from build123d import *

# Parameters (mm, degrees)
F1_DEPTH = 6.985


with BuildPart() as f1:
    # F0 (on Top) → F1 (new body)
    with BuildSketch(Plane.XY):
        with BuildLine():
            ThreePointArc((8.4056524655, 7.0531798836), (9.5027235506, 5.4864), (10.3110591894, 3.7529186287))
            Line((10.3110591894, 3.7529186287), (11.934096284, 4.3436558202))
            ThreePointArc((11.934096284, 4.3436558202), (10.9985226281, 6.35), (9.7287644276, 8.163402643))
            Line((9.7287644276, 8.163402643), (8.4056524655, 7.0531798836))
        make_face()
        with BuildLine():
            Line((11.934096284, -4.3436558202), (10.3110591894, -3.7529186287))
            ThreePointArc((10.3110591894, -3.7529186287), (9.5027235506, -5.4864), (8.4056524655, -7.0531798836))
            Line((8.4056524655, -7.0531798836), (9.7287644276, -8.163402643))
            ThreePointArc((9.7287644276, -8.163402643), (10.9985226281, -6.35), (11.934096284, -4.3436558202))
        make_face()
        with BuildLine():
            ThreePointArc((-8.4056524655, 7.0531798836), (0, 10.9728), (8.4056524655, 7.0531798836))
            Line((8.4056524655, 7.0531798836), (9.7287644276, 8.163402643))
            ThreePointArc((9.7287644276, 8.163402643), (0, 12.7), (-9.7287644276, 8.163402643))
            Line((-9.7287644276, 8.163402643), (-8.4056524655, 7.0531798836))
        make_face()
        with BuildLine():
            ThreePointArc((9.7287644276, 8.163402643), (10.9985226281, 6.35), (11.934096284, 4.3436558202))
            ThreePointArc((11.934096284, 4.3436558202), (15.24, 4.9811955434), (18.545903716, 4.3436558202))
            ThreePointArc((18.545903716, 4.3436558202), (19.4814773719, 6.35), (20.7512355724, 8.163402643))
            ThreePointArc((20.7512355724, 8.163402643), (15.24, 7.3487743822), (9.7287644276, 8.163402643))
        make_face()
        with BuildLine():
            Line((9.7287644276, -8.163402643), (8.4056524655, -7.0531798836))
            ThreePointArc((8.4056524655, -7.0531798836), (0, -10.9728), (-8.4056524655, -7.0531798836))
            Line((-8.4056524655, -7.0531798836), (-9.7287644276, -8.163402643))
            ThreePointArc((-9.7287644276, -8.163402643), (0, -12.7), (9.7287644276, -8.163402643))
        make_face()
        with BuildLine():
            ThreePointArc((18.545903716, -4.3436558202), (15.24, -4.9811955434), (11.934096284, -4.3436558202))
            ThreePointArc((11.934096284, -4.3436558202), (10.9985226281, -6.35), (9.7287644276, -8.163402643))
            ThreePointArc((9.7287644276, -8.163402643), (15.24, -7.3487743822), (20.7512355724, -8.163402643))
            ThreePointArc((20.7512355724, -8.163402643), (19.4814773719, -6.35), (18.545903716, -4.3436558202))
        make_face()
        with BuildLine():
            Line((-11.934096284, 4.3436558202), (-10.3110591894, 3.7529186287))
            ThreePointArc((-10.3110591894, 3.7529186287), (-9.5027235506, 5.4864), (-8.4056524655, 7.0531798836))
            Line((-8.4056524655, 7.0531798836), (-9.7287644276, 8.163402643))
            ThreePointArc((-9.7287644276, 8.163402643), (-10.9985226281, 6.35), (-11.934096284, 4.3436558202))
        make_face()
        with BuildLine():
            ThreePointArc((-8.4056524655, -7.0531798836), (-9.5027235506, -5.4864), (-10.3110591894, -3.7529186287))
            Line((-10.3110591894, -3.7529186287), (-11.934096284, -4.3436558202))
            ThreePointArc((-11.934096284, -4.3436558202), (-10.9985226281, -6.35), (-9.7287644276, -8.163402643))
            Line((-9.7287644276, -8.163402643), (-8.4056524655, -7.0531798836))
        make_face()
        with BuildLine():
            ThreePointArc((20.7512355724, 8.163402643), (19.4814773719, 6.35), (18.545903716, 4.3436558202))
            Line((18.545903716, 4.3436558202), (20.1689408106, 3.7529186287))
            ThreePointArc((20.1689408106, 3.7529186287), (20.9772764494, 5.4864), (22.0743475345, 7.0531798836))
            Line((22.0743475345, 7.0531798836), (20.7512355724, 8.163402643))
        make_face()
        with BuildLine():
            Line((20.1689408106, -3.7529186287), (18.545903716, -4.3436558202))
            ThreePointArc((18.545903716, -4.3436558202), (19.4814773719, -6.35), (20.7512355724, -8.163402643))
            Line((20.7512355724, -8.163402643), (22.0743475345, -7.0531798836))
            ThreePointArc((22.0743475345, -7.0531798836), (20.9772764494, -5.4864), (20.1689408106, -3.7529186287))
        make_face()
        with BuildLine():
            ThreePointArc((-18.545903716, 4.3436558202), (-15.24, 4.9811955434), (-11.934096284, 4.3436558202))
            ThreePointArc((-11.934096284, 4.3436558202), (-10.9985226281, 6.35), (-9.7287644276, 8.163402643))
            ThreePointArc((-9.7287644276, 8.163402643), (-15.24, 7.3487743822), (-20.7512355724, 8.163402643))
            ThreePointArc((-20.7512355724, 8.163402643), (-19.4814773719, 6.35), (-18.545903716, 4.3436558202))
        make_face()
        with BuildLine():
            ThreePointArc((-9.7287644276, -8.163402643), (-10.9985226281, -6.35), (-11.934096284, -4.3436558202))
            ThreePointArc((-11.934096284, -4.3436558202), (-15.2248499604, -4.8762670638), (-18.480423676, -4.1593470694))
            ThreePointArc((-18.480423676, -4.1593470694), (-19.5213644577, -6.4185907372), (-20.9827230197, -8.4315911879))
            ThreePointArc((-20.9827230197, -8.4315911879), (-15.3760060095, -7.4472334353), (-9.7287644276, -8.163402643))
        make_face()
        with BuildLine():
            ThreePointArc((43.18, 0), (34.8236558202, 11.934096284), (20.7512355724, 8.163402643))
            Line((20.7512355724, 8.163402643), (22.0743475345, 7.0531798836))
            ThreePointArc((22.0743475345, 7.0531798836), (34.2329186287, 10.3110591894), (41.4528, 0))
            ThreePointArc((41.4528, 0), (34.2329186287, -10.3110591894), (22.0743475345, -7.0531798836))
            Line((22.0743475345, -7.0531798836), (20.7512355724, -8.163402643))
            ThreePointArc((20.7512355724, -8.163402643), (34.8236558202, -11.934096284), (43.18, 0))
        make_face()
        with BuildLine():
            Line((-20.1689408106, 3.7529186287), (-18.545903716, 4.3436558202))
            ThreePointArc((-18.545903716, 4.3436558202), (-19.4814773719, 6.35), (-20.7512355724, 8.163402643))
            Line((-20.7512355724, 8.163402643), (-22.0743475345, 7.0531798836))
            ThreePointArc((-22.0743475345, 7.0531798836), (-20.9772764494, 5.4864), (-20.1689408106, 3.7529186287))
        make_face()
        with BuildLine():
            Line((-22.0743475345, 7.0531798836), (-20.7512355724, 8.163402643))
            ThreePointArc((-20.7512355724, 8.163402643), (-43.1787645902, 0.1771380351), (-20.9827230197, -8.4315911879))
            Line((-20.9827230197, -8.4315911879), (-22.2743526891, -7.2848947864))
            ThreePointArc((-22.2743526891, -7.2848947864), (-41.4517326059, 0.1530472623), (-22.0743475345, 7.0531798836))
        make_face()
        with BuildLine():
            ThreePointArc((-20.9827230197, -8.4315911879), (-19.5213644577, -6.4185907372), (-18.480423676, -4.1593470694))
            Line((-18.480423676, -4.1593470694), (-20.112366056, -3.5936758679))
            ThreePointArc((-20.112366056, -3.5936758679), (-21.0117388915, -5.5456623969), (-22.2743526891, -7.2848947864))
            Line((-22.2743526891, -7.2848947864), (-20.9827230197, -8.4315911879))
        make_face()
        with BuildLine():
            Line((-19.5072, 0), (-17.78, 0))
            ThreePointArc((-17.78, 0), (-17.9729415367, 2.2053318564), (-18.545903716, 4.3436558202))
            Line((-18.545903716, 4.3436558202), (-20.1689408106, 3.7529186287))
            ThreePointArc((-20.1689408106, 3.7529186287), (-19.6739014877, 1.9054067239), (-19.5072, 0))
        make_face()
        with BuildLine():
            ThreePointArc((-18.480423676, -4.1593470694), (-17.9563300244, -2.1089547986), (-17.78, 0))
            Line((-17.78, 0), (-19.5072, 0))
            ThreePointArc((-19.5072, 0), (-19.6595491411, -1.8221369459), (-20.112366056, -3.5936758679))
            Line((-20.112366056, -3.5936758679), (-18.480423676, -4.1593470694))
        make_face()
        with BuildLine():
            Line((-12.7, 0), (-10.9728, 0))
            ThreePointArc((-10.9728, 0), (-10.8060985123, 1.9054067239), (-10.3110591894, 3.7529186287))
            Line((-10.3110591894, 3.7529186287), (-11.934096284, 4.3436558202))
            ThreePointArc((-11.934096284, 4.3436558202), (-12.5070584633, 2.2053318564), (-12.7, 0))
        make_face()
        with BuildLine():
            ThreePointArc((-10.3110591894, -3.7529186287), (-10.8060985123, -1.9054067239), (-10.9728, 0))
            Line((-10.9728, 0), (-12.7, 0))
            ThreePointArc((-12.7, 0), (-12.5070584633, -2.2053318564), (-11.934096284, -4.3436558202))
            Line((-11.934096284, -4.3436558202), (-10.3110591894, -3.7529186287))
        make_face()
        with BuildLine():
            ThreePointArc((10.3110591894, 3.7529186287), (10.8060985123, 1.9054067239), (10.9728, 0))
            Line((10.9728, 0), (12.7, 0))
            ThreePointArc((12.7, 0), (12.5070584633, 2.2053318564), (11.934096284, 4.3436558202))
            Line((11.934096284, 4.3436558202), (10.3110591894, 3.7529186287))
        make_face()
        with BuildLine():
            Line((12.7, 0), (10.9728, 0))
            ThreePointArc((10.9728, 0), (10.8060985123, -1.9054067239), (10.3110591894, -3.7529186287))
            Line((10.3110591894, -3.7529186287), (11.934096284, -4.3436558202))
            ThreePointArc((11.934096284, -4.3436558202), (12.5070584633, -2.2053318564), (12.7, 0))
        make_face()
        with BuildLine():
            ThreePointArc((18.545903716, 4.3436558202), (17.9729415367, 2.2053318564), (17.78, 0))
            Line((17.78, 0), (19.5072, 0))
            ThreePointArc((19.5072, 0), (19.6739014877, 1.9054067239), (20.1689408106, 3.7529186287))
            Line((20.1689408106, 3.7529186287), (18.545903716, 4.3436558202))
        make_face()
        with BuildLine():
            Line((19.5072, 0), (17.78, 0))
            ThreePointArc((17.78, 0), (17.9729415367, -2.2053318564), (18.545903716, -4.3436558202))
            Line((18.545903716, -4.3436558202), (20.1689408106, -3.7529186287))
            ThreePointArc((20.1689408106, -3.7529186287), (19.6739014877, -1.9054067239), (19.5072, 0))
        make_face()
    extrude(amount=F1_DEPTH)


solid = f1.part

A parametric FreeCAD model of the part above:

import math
import FreeCAD as App
import Part
import Sketcher

V = App.Vector
Q = App.Units.Quantity

doc = App.newDocument("Part")
body = doc.addObject("PartDesign::Body", "Body")

# Sketch on XY plane
sketch1 = body.newObject("Sketcher::SketchObject", "Sketch")
sketch1.AttachmentSupport = (doc.getObject("XY_Plane"), [""])
sketch1.MapMode = "FlatFace"
sketch1.addGeometry(Part.ArcOfCircle(Part.Circle(V(-30.5, 0, 0), V(0, 0, 1), 12.7), math.radians(40), math.radians(318)), False)
sketch1.addGeometry(Part.ArcOfCircle(Part.Circle(V(-14.9, -26.5, 0), V(0, 0, 1), 19.1), math.radians(74), math.radians(109)), False)
sketch1.addGeometry(Part.ArcOfCircle(Part.Circle(V(0, 0, 0), V(0, 0, 1), 12.7), math.radians(-140), math.radians(-40)), False)
sketch1.addGeometry(Part.ArcOfCircle(Part.Circle(V(15.2, -26.4, 0), V(0, 0, 1), 19.1), math.radians(73), math.radians(107)), False)
sketch1.addGeometry(Part.ArcOfCircle(Part.Circle(V(30.5, 0, 0), V(0, 0, 1), 12.7), math.radians(-140), math.radians(0)), False)
sketch1.addGeometry(Part.ArcOfCircle(Part.Circle(V(30.5, 0, 0), V(0, 0, 1), 12.7), math.radians(0), math.radians(140)), False)
sketch1.addGeometry(Part.ArcOfCircle(Part.Circle(V(15.2, 26.4, 0), V(0, 0, 1), 19.1), math.radians(-107), math.radians(-73)), False)
sketch1.addGeometry(Part.ArcOfCircle(Part.Circle(V(0, 0, 0), V(0, 0, 1), 12.7), math.radians(40), math.radians(140)), False)
sketch1.addGeometry(Part.ArcOfCircle(Part.Circle(V(-15.2, 26.4, 0), V(0, 0, 1), 19.1), math.radians(-107), math.radians(-73)), False)
sketch1.addGeometry(Part.ArcOfCircle(Part.Circle(V(-15, 4, 0), V(0, 0, 1), 8.9), math.radians(-113), math.radians(-70)), False)
sketch1.addGeometry(Part.ArcOfCircle(Part.Circle(V(-30.5, 0, 0), V(0, 0, 1), 12.7), math.radians(-19.12), math.radians(0)), False)
sketch1.addGeometry(Part.ArcOfCircle(Part.Circle(V(-30.5, 0, 0), V(0, 0, 1), 12.7), math.radians(0), math.radians(20)), False)
sketch1.addGeometry(Part.ArcOfCircle(Part.Circle(V(-15.2, -3.9, 0), V(0, 0, 1), 8.9), math.radians(68), math.radians(112)), False)
sketch1.addGeometry(Part.ArcOfCircle(Part.Circle(V(0, 0, 0), V(0, 0, 1), 12.7), math.radians(160), math.radians(180)), False)
sketch1.addGeometry(Part.ArcOfCircle(Part.Circle(V(0, 0, 0), V(0, 0, 1), 12.7), math.radians(180), math.radians(200)), False)
sketch1.addGeometry(Part.ArcOfCircle(Part.Circle(V(0, 0, 0), V(0, 0, 1), 11), math.radians(160), math.radians(180)), False)
sketch1.addGeometry(Part.ArcOfCircle(Part.Circle(V(0, 0, 0), V(0, 0, 1), 11), math.radians(140), math.radians(160)), False)
sketch1.addGeometry(Part.ArcOfCircle(Part.Circle(V(0, 0, 0), V(0, 0, 1), 11), math.radians(40), math.radians(140)), False)
sketch1.addGeometry(Part.ArcOfCircle(Part.Circle(V(0, 0, 0), V(0, 0, 1), 11), math.radians(20), math.radians(40)), False)
sketch1.addGeometry(Part.ArcOfCircle(Part.Circle(V(0, 0, 0), V(0, 0, 1), 11), math.radians(0), math.radians(20)), False)
sketch1.addGeometry(Part.ArcOfCircle(Part.Circle(V(0, 0, 0), V(0, 0, 1), 11), math.radians(-20), math.radians(0)), False)
sketch1.addGeometry(Part.ArcOfCircle(Part.Circle(V(0, 0, 0), V(0, 0, 1), 11), math.radians(-40), math.radians(-20)), False)
sketch1.addGeometry(Part.ArcOfCircle(Part.Circle(V(0, 0, 0), V(0, 0, 1), 11), math.radians(-140), math.radians(-40)), False)
sketch1.addGeometry(Part.ArcOfCircle(Part.Circle(V(0, 0, 0), V(0, 0, 1), 11), math.radians(-160), math.radians(-140)), False)
sketch1.addGeometry(Part.ArcOfCircle(Part.Circle(V(0, 0, 0), V(0, 0, 1), 11), math.radians(180), math.radians(200)), False)
sketch1.addGeometry(Part.ArcOfCircle(Part.Circle(V(0, 0, 0), V(0, 0, 1), 12.7), math.radians(0), math.radians(20)), False)
sketch1.addGeometry(Part.ArcOfCircle(Part.Circle(V(15.2, -3.9, 0), V(0, 0, 1), 8.9), math.radians(68), math.radians(112)), False)
sketch1.addGeometry(Part.ArcOfCircle(Part.Circle(V(30.5, 0, 0), V(0, 0, 1), 12.7), math.radians(160), math.radians(180)), False)
sketch1.addGeometry(Part.ArcOfCircle(Part.Circle(V(30.5, 0, 0), V(0, 0, 1), 12.7), math.radians(180), math.radians(200)), False)
sketch1.addGeometry(Part.ArcOfCircle(Part.Circle(V(15.2, 3.9, 0), V(0, 0, 1), 8.9), math.radians(-112), math.radians(-68)), False)
sketch1.addGeometry(Part.ArcOfCircle(Part.Circle(V(0, 0, 0), V(0, 0, 1), 12.7), math.radians(-20), math.radians(0)), False)
sketch1.addGeometry(Part.ArcOfCircle(Part.Circle(V(30.5, 0, 0), V(0, 0, 1), 11), math.radians(160), math.radians(180)), False)
sketch1.addGeometry(Part.ArcOfCircle(Part.Circle(V(30.5, 0, 0), V(0, 0, 1), 11), math.radians(140), math.radians(160)), False)
sketch1.addGeometry(Part.ArcOfCircle(Part.Circle(V(30.5, 0, 0), V(0, 0, 1), 11), math.radians(0), math.radians(140)), False)
sketch1.addGeometry(Part.ArcOfCircle(Part.Circle(V(30.5, 0, 0), V(0, 0, 1), 11), math.radians(-140), math.radians(0)), False)
sketch1.addGeometry(Part.ArcOfCircle(Part.Circle(V(30.5, 0, 0), V(0, 0, 1), 11), math.radians(-160), math.radians(-140)), False)
sketch1.addGeometry(Part.ArcOfCircle(Part.Circle(V(30.5, 0, 0), V(0, 0, 1), 11), math.radians(180), math.radians(200)), False)
sketch1.addGeometry(Part.ArcOfCircle(Part.Circle(V(-30.5, 0, 0), V(0, 0, 1), 11), math.radians(-42), math.radians(-19)), False)
sketch1.addGeometry(Part.ArcOfCircle(Part.Circle(V(-30.5, 0, 0), V(0, 0, 1), 11), math.radians(40), math.radians(318)), False)
sketch1.addGeometry(Part.ArcOfCircle(Part.Circle(V(-30.5, 0, 0), V(0, 0, 1), 11), math.radians(20), math.radians(40)), False)
sketch1.addGeometry(Part.ArcOfCircle(Part.Circle(V(-30.5, 0, 0), V(0, 0, 1), 11), math.radians(0), math.radians(20)), False)
sketch1.addGeometry(Part.ArcOfCircle(Part.Circle(V(-30.5, 0, 0), V(0, 0, 1), 11), math.radians(-19.12), math.radians(0)), False)
sketch1.addConstraint(Sketcher.Constraint("Coincident", 0, 2, 1, 2))
sketch1.addConstraint(Sketcher.Constraint("Coincident", 1, 1, 2, 1))
sketch1.addConstraint(Sketcher.Constraint("Coincident", 2, 2, 3, 2))
sketch1.addConstraint(Sketcher.Constraint("Coincident", 3, 1, 4, 1))
sketch1.addConstraint(Sketcher.Constraint("Tangent", 4, 2, 5, 1))
sketch1.addConstraint(Sketcher.Constraint("Coincident", 5, 2, 6, 2))
sketch1.addConstraint(Sketcher.Constraint("Coincident", 6, 1, 7, 1))
sketch1.addConstraint(Sketcher.Constraint("Coincident", 7, 2, 8, 2))
sketch1.addConstraint(Sketcher.Constraint("Coincident", 8, 1, 0, 1))
sketch1.addConstraint(Sketcher.Constraint("Coincident", 9, 1, 10, 1))
sketch1.addConstraint(Sketcher.Constraint("Tangent", 10, 2, 11, 1))
sketch1.addConstraint(Sketcher.Constraint("Coincident", 11, 2, 12, 2))
sketch1.addConstraint(Sketcher.Constraint("Coincident", 12, 1, 13, 1))
sketch1.addConstraint(Sketcher.Constraint("Tangent", 13, 2, 14, 1))
sketch1.addConstraint(Sketcher.Constraint("Coincident", 14, 2, 9, 2))
sketch1.addConstraint(Sketcher.Constraint("Tangent", 15, 1, 16, 2))
sketch1.addConstraint(Sketcher.Constraint("Tangent", 16, 1, 17, 2))
sketch1.addConstraint(Sketcher.Constraint("Tangent", 17, 1, 18, 2))
sketch1.addConstraint(Sketcher.Constraint("Tangent", 18, 1, 19, 2))
sketch1.addConstraint(Sketcher.Constraint("Tangent", 19, 1, 20, 2))
sketch1.addConstraint(Sketcher.Constraint("Tangent", 20, 1, 21, 2))
sketch1.addConstraint(Sketcher.Constraint("Tangent", 21, 1, 22, 2))
sketch1.addConstraint(Sketcher.Constraint("Tangent", 22, 1, 23, 2))
sketch1.addConstraint(Sketcher.Constraint("Tangent", 23, 1, 24, 2))
sketch1.addConstraint(Sketcher.Constraint("Tangent", 24, 1, 15, 2))
sketch1.addConstraint(Sketcher.Constraint("Coincident", 25, 2, 26, 2))
sketch1.addConstraint(Sketcher.Constraint("Coincident", 26, 1, 27, 1))
sketch1.addConstraint(Sketcher.Constraint("Tangent", 27, 2, 28, 1))
sketch1.addConstraint(Sketcher.Constraint("Coincident", 28, 2, 29, 2))
sketch1.addConstraint(Sketcher.Constraint("Coincident", 29, 1, 30, 1))
sketch1.addConstraint(Sketcher.Constraint("Tangent", 30, 2, 25, 1))
sketch1.addConstraint(Sketcher.Constraint("Tangent", 31, 1, 32, 2))
sketch1.addConstraint(Sketcher.Constraint("Tangent", 32, 1, 33, 2))
sketch1.addConstraint(Sketcher.Constraint("Tangent", 33, 1, 34, 2))
sketch1.addConstraint(Sketcher.Constraint("Tangent", 34, 1, 35, 2))
sketch1.addConstraint(Sketcher.Constraint("Tangent", 35, 1, 36, 2))
sketch1.addConstraint(Sketcher.Constraint("Tangent", 36, 1, 31, 2))
sketch1.addConstraint(Sketcher.Constraint("Tangent", 37, 1, 38, 2))
sketch1.addConstraint(Sketcher.Constraint("Tangent", 38, 1, 39, 2))
sketch1.addConstraint(Sketcher.Constraint("Tangent", 39, 1, 40, 2))
sketch1.addConstraint(Sketcher.Constraint("Tangent", 40, 1, 41, 2))
sketch1.addConstraint(Sketcher.Constraint("Tangent", 41, 1, 37, 2))
sketch1.addConstraint(Sketcher.Constraint("Coincident", 2, 3, -1, 1))
sketch1.addConstraint(Sketcher.Constraint("Coincident", 7, 3, -1, 1))
sketch1.addConstraint(Sketcher.Constraint("Coincident", 13, 3, -1, 1))
sketch1.addConstraint(Sketcher.Constraint("Coincident", 15, 3, -1, 1))
sketch1.addConstraint(Sketcher.Constraint("Coincident", 17, 3, -1, 1))
sketch1.addConstraint(Sketcher.Constraint("Coincident", 19, 3, -1, 1))
sketch1.addConstraint(Sketcher.Constraint("Coincident", 21, 3, -1, 1))
sketch1.addConstraint(Sketcher.Constraint("Coincident", 25, 3, -1, 1))
sketch1.addConstraint(Sketcher.Constraint("Coincident", 10, 3, 0, 3))
sketch1.addConstraint(Sketcher.Constraint("Coincident", 27, 3, 4, 3))
sketch1.addConstraint(Sketcher.Constraint("Coincident", 31, 3, 4, 3))
sketch1.addConstraint(Sketcher.Constraint("Coincident", 33, 3, 4, 3))
sketch1.addConstraint(Sketcher.Constraint("Coincident", 37, 3, 0, 3))
sketch1.addConstraint(Sketcher.Constraint("Coincident", 39, 3, 0, 3))
sketch1.addConstraint(Sketcher.Constraint("Equal", 0, 2))
sketch1.addConstraint(Sketcher.Constraint("Equal", 1, 3))
sketch1.addConstraint(Sketcher.Constraint("Equal", 2, 4))
sketch1.addConstraint(Sketcher.Constraint("Equal", 4, 5))
sketch1.addConstraint(Sketcher.Constraint("Equal", 3, 6))
sketch1.addConstraint(Sketcher.Constraint("Equal", 5, 7))
sketch1.addConstraint(Sketcher.Constraint("Equal", 6, 8))
sketch1.addConstraint(Sketcher.Constraint("Equal", 7, 10))
sketch1.addConstraint(Sketcher.Constraint("Equal", 10, 11))
sketch1.addConstraint(Sketcher.Constraint("Equal", 9, 12))
sketch1.addConstraint(Sketcher.Constraint("Equal", 11, 13))
sketch1.addConstraint(Sketcher.Constraint("Equal", 13, 14))
sketch1.addConstraint(Sketcher.Constraint("Equal", 21, 22))
sketch1.addConstraint(Sketcher.Constraint("Equal", 14, 25))
sketch1.addConstraint(Sketcher.Constraint("Equal", 12, 26))
sketch1.addConstraint(Sketcher.Constraint("Equal", 25, 27))
sketch1.addConstraint(Sketcher.Constraint("Equal", 27, 28))
sketch1.addConstraint(Sketcher.Constraint("Equal", 26, 29))
sketch1.addConstraint(Sketcher.Constraint("Equal", 28, 30))
sketch1.addConstraint(Sketcher.Constraint("Equal", 24, 31))
sketch1.addConstraint(Sketcher.Constraint("Equal", 33, 34))
sketch1.addConstraint(Sketcher.Constraint("Equal", 36, 37))
sketch1.addConstraint(Sketcher.Constraint("Symmetric", 0, 3, 4, 3, -1, 1))
sketch1.addConstraint(Sketcher.Constraint("Symmetric", 3, 3, 8, 3, -1, 1))
sketch1.addConstraint(Sketcher.Constraint("Symmetric", 12, 3, 29, 3, -1, 1))
sketch1.addConstraint(Sketcher.Constraint("Symmetric", 6, 3, 8, 3, -2))
sketch1.addConstraint(Sketcher.Constraint("Symmetric", 12, 3, 26, 3, -2))
sketch1.addConstraint(Sketcher.Constraint("Symmetric", 32, 1, 38, 1, -2))
sketch1.addConstraint(Sketcher.Constraint("PointOnObject", 4, 2, -1))
sketch1.addConstraint(Sketcher.Constraint("PointOnObject", 10, 2, -1))
sketch1.addConstraint(Sketcher.Constraint("PointOnObject", 13, 2, -1))
sketch1.addConstraint(Sketcher.Constraint("PointOnObject", 19, 1, -1))
sketch1.addConstraint(Sketcher.Constraint("PointOnObject", 24, 1, -1))
sketch1.addConstraint(Sketcher.Constraint("PointOnObject", 27, 2, -1))
sketch1.addConstraint(Sketcher.Constraint("PointOnObject", 30, 2, -1))
sketch1.addConstraint(Sketcher.Constraint("PointOnObject", 33, 1, -1))
sketch1.addConstraint(Sketcher.Constraint("PointOnObject", 36, 1, -1))
sketch1.addConstraint(Sketcher.Constraint("PointOnObject", 40, 1, -1))
sketch1.addConstraint(Sketcher.Constraint("Horizontal", 1, 1, 2, 2))
sketch1.addConstraint(Sketcher.Constraint("Horizontal", 2, 2, 3, 1))
sketch1.addConstraint(Sketcher.Constraint("Horizontal", 11, 2, 12, 1))
sketch1.addConstraint(Sketcher.Constraint("Horizontal", 16, 1, 17, 1))
sketch1.addConstraint(Sketcher.Constraint("Horizontal", 15, 1, 18, 1))
sketch1.addConstraint(Sketcher.Constraint("Horizontal", 21, 1, 22, 1))
sketch1.addConstraint(Sketcher.Constraint("Horizontal", 20, 1, 23, 1))
sketch1.addConstraint(Sketcher.Constraint("Horizontal", 14, 2, 28, 2))
sketch1.addConstraint(Sketcher.Constraint("Horizontal", 18, 1, 31, 1))
sketch1.addConstraint(Sketcher.Constraint("Horizontal", 17, 1, 32, 1))
sketch1.addConstraint(Sketcher.Constraint("Horizontal", 22, 1, 34, 1))
sketch1.addConstraint(Sketcher.Constraint("Horizontal", 23, 1, 35, 1))
sketch1.addConstraint(Sketcher.Constraint("Horizontal", 31, 1, 39, 1))
sketch1.addConstraint(Sketcher.Constraint("Vertical", 18, 1, 20, 1))
sketch1.addConstraint(Sketcher.Constraint("Vertical", 17, 1, 21, 1))
sketch1.addConstraint(Sketcher.Constraint("Radius", 0, Q("0.5 in")))
sketch1.addConstraint(Sketcher.Constraint("Radius", 1, Q("0.75 in")))
sketch1.addConstraint(Sketcher.Constraint("Radius", 9, Q("0.35 in")))
sketch1.addConstraint(Sketcher.Constraint("Radius", 15, Q("0.432 in")))
sketch1.addConstraint(Sketcher.Constraint("DistanceX", 0, 3, -1, 1, Q("1.2 in")))
sketch1.addConstraint(Sketcher.Constraint("DistanceX", 1, 3, -1, 1, Q("14.922162 mm")))
sketch1.addConstraint(Sketcher.Constraint("DistanceY", -1, 1, 9, 3, Q("4.010212 mm")))
sketch1.addConstraint(Sketcher.Constraint("DistanceY", 0, 2, -1, 1, Q("8.431591 mm")))
sketch1.addConstraint(Sketcher.Constraint("DistanceX", 15, 1, -1, 1, Q("10.311059 mm")))
sketch1.addConstraint(Sketcher.Constraint("DistanceY", -1, 1, 16, 1, Q("7.05318 mm")))
sketch1.addConstraint(Sketcher.Constraint("DistanceX", 9, 3, -1, 1, Q("14.974655 mm")))
sketch1.addConstraint(Sketcher.Constraint("DistanceX", 37, 1, -1, 1, Q("22.274353 mm")))
sketch1.addConstraint(Sketcher.Constraint("DistanceX", 41, 1, -1, 1, Q("20.112366 mm")))
pad1 = body.newObject("PartDesign::Pad", "Pad")
pad1.Profile = sketch1
pad1.Length = Q("0.275 in")

doc.recompute()
